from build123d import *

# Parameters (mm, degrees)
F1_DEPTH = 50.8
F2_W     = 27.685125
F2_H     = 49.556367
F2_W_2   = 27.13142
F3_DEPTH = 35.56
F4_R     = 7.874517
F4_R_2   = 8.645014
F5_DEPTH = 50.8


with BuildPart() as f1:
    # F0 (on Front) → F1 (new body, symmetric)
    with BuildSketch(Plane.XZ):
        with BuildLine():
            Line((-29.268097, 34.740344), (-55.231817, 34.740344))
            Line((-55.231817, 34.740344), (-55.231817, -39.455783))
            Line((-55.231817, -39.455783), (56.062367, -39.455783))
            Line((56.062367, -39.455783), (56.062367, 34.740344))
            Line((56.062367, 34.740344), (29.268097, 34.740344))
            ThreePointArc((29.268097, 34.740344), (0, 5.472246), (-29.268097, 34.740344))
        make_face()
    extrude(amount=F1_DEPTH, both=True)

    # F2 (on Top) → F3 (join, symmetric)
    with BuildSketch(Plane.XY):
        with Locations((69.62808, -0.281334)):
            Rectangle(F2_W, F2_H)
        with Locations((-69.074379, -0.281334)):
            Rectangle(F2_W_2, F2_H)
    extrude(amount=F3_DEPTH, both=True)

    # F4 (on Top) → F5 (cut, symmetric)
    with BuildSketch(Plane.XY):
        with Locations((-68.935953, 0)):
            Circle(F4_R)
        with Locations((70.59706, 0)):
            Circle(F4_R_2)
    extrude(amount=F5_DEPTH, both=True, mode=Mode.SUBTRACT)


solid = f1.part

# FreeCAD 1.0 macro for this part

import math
import FreeCAD as App
import Part
import Sketcher
from FreeCAD import Vector
Q = App.Units.Quantity


def add_polygon(sketch, points):
    """Adds a closed chain of lines whose ends are joined by coincident constraints."""
    first, n = sketch.GeometryCount, len(points)
    for a, b in zip(points, points[1:] + points[:1]):
        sketch.addGeometry(Part.LineSegment(App.Vector(*a, 0), App.Vector(*b, 0)), False)
    for i in range(n):
        sketch.addConstraint(Sketcher.Constraint("Coincident", first + i, 2, first + (i + 1) % n, 1))

doc = App.newDocument("Part")
body = doc.addObject("PartDesign::Body", "Body")
body.AllowCompound = True

# Sketch on XZ plane
sketch1 = doc.addObject("Sketcher::SketchObject", "Sketch")
body.addObject(sketch1)
sketch1.AttachmentSupport = (doc.XZ_Plane, [""])
sketch1.MapMode = "FlatFace"
sketch1.addGeometry([
    Part.LineSegment(Vector(-29, 35, 0), Vector(-55, 35, 0)),  # 0
    Part.LineSegment(Vector(-55, 35, 0), Vector(-55, -39, 0)),  # 1
    Part.LineSegment(Vector(-55, -39, 0), Vector(56, -39, 0)),  # 2
    Part.LineSegment(Vector(56, -39, 0), Vector(56, 35, 0)),  # 3
    Part.LineSegment(Vector(56, 35, 0), Vector(29, 35, 0)),  # 4
    Part.ArcOfCircle(Part.Circle(Vector(0, 35, 0), Vector(0, 0, 1), 29), math.radians(180), math.radians(360)),  # 5
], False)
sketch1.addConstraint([
    Sketcher.Constraint("Coincident", 0, 2, 1, 1),
    Sketcher.Constraint("Coincident", 1, 2, 2, 1),
    Sketcher.Constraint("Coincident", 2, 2, 3, 1),
    Sketcher.Constraint("Coincident", 3, 2, 4, 1),
    Sketcher.Constraint("Coincident", 4, 2, 5, 2),
    Sketcher.Constraint("Coincident", 5, 1, 0, 1),
    Sketcher.Constraint("Horizontal", 0),
    Sketcher.Constraint("Vertical", 1),
    Sketcher.Constraint("Horizontal", 2),
    Sketcher.Constraint("Vertical", 3),
    Sketcher.Constraint("Horizontal", 4),
    Sketcher.Constraint("Symmetric", 4, 2, 5, 1, -2),
    Sketcher.Constraint("Horizontal", 5, 3, 0, 2),
    Sketcher.Constraint("Radius", 5, 29.268097),
    Sketcher.Constraint("DistanceX", 0, 2, 0, 1, 25.96372),
    Sketcher.Constraint("DistanceX", 4, 2, 4, 1, 26.79427),
    Sketcher.Constraint("DistanceY", 1, 2, 1, 1, 74.196127),
    Sketcher.Constraint("DistanceY", -1, 1, 5, 3, 34.740343),
])
pad1 = doc.addObject("PartDesign::Pad", "Pad")
body.addObject(pad1)
pad1.Profile = sketch1
pad1.Length = Q("4 in")
pad1.Midplane = True

# Sketch on XY plane
sketch2 = doc.addObject("Sketcher::SketchObject", "Sketch001")
body.addObject(sketch2)
sketch2.AttachmentSupport = (doc.XY_Plane, [""])
sketch2.MapMode = "FlatFace"
add_polygon(sketch2, [(56, 24), (56, -25), (83, -25), (83, 24)])  # lines 0-3
add_polygon(sketch2, [(-83, 24), (-83, -25), (-56, -25), (-56, 24)])  # lines 4-7
sketch2.addConstraint([
    Sketcher.Constraint("Vertical", 0),
    Sketcher.Constraint("Horizontal", 1),
    Sketcher.Constraint("Vertical", 2),
    Sketcher.Constraint("Horizontal", 3),
    Sketcher.Constraint("Vertical", 4),
    Sketcher.Constraint("Horizontal", 5),
    Sketcher.Constraint("Vertical", 6),
    Sketcher.Constraint("Horizontal", 7),
    Sketcher.Constraint("Horizontal", 1, 2, 4, 2),
    Sketcher.Constraint("Horizontal", 3, 2, 6, 2),
    Sketcher.Constraint("DistanceX", 5, 1, 5, 2, 27.13142),
    Sketcher.Constraint("DistanceX", 1, 1, 1, 2, 27.685125),
    Sketcher.Constraint("DistanceY", 0, 2, 0, 1, 49.556367),
    Sketcher.Constraint("DistanceY", -1, 1, 2, 2, 24.496849),
    Sketcher.Constraint("DistanceX", 4, 2, -1, 1, 82.640089),
    Sketcher.Constraint("DistanceX", 4, 2, 1, 2, 166.110731),
])
pad2 = doc.addObject("PartDesign::Pad", "Pad001")
body.addObject(pad2)
pad2.Profile = sketch2
pad2.Length = Q("2.8 in")
pad2.Midplane = True

# Sketch on XY plane
sketch3 = doc.addObject("Sketcher::SketchObject", "Sketch002")
body.addObject(sketch3)
sketch3.AttachmentSupport = (doc.XY_Plane, [""])
sketch3.MapMode = "FlatFace"
sketch3.addGeometry([
    Part.Circle(Vector(-69, 0, 0), Vector(0, 0, 1), 8),
    Part.Circle(Vector(71, 0, 0), Vector(0, 0, 1), 9),
], False)
sketch3.addConstraint([
    Sketcher.Constraint("PointOnObject", 0, 3, -1),
    Sketcher.Constraint("PointOnObject", 1, 3, -1),
    Sketcher.Constraint("Diameter", 0, 15.749034),
    Sketcher.Constraint("Diameter", 1, 17.290028),
    Sketcher.Constraint("DistanceX", -1, 1, 1, 3, 70.59706),
    Sketcher.Constraint("DistanceX", 0, 3, -1, 1, 68.935953),
])
pocket1 = doc.addObject("PartDesign::Pocket", "Pocket")
body.addObject(pocket1)
pocket1.Profile = sketch3
pocket1.Length = Q("4 in")
pocket1.Midplane = True

doc.recompute()
